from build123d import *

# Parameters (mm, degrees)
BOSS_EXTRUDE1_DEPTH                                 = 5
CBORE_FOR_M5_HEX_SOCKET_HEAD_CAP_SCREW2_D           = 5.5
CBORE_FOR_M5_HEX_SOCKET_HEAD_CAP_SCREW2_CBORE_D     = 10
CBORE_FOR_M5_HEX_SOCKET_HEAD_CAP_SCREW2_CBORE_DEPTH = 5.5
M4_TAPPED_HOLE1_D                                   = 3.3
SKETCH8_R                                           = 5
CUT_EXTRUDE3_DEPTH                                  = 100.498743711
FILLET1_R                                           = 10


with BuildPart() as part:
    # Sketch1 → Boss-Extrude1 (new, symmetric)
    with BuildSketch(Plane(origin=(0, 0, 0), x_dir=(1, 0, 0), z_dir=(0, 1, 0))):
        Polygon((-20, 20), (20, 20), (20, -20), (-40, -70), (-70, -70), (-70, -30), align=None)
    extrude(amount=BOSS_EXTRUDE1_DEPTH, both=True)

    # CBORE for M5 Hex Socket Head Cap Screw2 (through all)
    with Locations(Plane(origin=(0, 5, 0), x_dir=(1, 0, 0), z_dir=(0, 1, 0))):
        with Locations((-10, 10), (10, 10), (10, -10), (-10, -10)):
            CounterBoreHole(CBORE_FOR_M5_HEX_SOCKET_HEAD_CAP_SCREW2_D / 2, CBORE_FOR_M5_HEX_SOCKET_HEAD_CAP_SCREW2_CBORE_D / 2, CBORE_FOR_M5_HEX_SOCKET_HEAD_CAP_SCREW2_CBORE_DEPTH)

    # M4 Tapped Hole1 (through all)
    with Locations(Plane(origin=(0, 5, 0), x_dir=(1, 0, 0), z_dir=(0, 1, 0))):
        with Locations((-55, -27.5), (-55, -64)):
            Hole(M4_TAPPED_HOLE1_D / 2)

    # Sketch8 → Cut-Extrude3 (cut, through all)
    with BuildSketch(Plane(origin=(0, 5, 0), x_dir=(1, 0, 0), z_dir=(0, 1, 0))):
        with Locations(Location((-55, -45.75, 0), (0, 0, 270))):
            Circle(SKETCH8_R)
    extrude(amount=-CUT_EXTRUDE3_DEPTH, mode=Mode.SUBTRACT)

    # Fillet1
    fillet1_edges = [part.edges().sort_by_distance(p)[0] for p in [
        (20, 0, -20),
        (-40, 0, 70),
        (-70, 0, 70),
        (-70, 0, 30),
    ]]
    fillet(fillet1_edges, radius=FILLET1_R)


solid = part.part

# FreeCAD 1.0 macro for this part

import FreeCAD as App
import Part
import Sketcher
from FreeCAD import Vector
Q = App.Units.Quantity


def edges_at(feature, points):
    """Names of the edges that pass closest to the given points."""
    edges = feature.Shape.Edges
    near = lambda p: min(range(len(edges)), key=lambda i: edges[i].distToShape(Part.Vertex(*p))[0])
    return sorted({f"Edge{near(p) + 1}" for p in points})


def add_polygon(sketch, points):
    """Adds a closed chain of lines whose ends are joined by coincident constraints."""
    first, n = sketch.GeometryCount, len(points)
    for a, b in zip(points, points[1:] + points[:1]):
        sketch.addGeometry(Part.LineSegment(App.Vector(*a, 0), App.Vector(*b, 0)), False)
    for i in range(n):
        sketch.addConstraint(Sketcher.Constraint("Coincident", first + i, 2, first + (i + 1) % n, 1))

doc = App.newDocument("Part")
body = doc.addObject("PartDesign::Body", "Body")

# Sketch on XZ plane
sketch1 = doc.addObject("Sketcher::SketchObject", "Sketch")
body.addObject(sketch1)
sketch1.AttachmentSupport = (doc.XZ_Plane, [""])
sketch1.MapMode = "FlatFace"
add_polygon(sketch1, [(20, -20), (-20, -20), (-70, 30), (-70, 70), (-40, 70), (20, 20)])  # lines 0-5
sketch1.addConstraint(Sketcher.Constraint("Horizontal", 0))
sketch1.addConstraint(Sketcher.Constraint("Vertical", 2))
sketch1.addConstraint(Sketcher.Constraint("Horizontal", 3))
sketch1.addConstraint(Sketcher.Constraint("Vertical", 5))
sketch1.addConstraint(Sketcher.Constraint("Symmetric", 0, 2, 4, 2, -1, 1))
sketch1.addConstraint(Sketcher.Constraint("Equal", 0, 2))
sketch1.addConstraint(Sketcher.Constraint("Equal", 2, 5))
sketch1.addConstraint(Sketcher.Constraint("DistanceX", 0, 2, 0, 1, Q("40 mm")))
sketch1.addConstraint(Sketcher.Constraint("DistanceX", 3, 1, 3, 2, Q("30 mm")))
sketch1.addConstraint(Sketcher.Constraint("Angle", 1, Q("135 deg")))
sketch1.addConstraint(Sketcher.Constraint("DistanceX", 1, 2, -1, 1, Q("70 mm")))
pad1 = doc.addObject("PartDesign::Pad", "Pad")
body.addObject(pad1)
pad1.Profile = sketch1
pad1.Length = 10
pad1.Midplane = True

# Sketch on XZ plane
sketch2 = doc.addObject("Sketcher::SketchObject", "Sketch001")
body.addObject(sketch2)
sketch2.AttachmentSupport = (doc.XZ_Plane, [""])
sketch2.MapMode = "FlatFace"
sketch2.AttachmentOffset = App.Placement(Vector(0, 0, -5), App.Rotation())
sketch2.addGeometry(Part.Circle(Vector(-10, -10, 0), Vector(0, 0, 1), 2.8), False)
sketch2.addGeometry(Part.Circle(Vector(10, -10, 0), Vector(0, 0, 1), 2.8), False)
sketch2.addGeometry(Part.Circle(Vector(10, 10, 0), Vector(0, 0, 1), 2.8), False)
sketch2.addGeometry(Part.Circle(Vector(-10, 10, 0), Vector(0, 0, 1), 2.8), False)
sketch2.addConstraint(Sketcher.Constraint("Equal", 0, 1))
sketch2.addConstraint(Sketcher.Constraint("Equal", 1, 2))
sketch2.addConstraint(Sketcher.Constraint("Equal", 2, 3))
sketch2.addConstraint(Sketcher.Constraint("Symmetric", 0, 3, 2, 3, -1, 1))
sketch2.addConstraint(Sketcher.Constraint("Symmetric", 1, 3, 3, 3, -1, 1))
sketch2.addConstraint(Sketcher.Constraint("Symmetric", 0, 3, 1, 3, -2))
sketch2.addConstraint(Sketcher.Constraint("Diameter", 0, Q("5.5 mm")))
sketch2.addConstraint(Sketcher.Constraint("DistanceX", 0, 3, -1, 1, Q("10 mm")))
sketch2.addConstraint(Sketcher.Constraint("DistanceY", 0, 3, -1, 1, Q("10 mm")))
doc.recompute()
hole = doc.addObject("PartDesign::Hole", "Hole")
body.addObject(hole)
hole.Profile = sketch2
hole.ThreadType = "None"
hole.Diameter = 5.5
hole.DepthType = "ThroughAll"
hole.HoleCutType = "Counterbore"
hole.HoleCutDiameter = 10
hole.HoleCutDepth = 5.5
hole.Reversed = True

# Sketch on XZ plane
sketch3 = doc.addObject("Sketcher::SketchObject", "Sketch002")
body.addObject(sketch3)
sketch3.AttachmentSupport = (doc.XZ_Plane, [""])
sketch3.MapMode = "FlatFace"
sketch3.AttachmentOffset = App.Placement(Vector(0, 0, -5), App.Rotation())
sketch3.addGeometry(Part.Circle(Vector(-55, 27.5, 0), Vector(0, 0, 1), 1.6), False)
sketch3.addGeometry(Part.Circle(Vector(-55, 64, 0), Vector(0, 0, 1), 1.6), False)
sketch3.addConstraint(Sketcher.Constraint("Equal", 0, 1))
sketch3.addConstraint(Sketcher.Constraint("Vertical", 0, 3, 1, 3))
sketch3.addConstraint(Sketcher.Constraint("Diameter", 0, Q("3.3 mm")))
sketch3.addConstraint(Sketcher.Constraint("DistanceX", 0, 3, -1, 1, Q("55 mm")))
sketch3.addConstraint(Sketcher.Constraint("DistanceY", -1, 1, 1, 3, Q("64 mm")))
sketch3.addConstraint(Sketcher.Constraint("DistanceY", -1, 1, 0, 3, Q("27.5 mm")))
doc.recompute()
hole2 = doc.addObject("PartDesign::Hole", "Hole001")
body.addObject(hole2)
hole2.Profile = sketch3
hole2.ThreadType = "None"
hole2.Diameter = 3.3
hole2.DepthType = "ThroughAll"
hole2.Reversed = True

# Sketch on XZ plane
sketch4 = doc.addObject("Sketcher::SketchObject", "Sketch003")
body.addObject(sketch4)
sketch4.AttachmentSupport = (doc.XZ_Plane, [""])
sketch4.MapMode = "FlatFace"
sketch4.AttachmentOffset = App.Placement(Vector(0, 0, -5), App.Rotation())
sketch4.addGeometry(Part.Circle(Vector(-55, 46, 0), Vector(0, 0, 1), 5), False)
sketch4.addConstraint(Sketcher.Constraint("Diameter", 0, Q("10 mm")))
sketch4.addConstraint(Sketcher.Constraint("DistanceX", 0, 3, -1, 1, Q("55 mm")))
sketch4.addConstraint(Sketcher.Constraint("DistanceY", -1, 1, 0, 3, Q("45.75 mm")))
pocket1 = doc.addObject("PartDesign::Pocket", "Pocket")
body.addObject(pocket1)
pocket1.Profile = sketch4
pocket1.Type = "ThroughAll"
pocket1.Reversed = True
doc.recompute()

fillet = doc.addObject("PartDesign::Fillet", "Fillet")
body.addObject(fillet)
fillet.Base = (pocket1, edges_at(pocket1, [
    (20, 0, -20),
    (-40, 0, 70),
    (-70, 0, 70),
    (-70, 0, 30),
]))
fillet.Radius = 10

doc.recompute()
